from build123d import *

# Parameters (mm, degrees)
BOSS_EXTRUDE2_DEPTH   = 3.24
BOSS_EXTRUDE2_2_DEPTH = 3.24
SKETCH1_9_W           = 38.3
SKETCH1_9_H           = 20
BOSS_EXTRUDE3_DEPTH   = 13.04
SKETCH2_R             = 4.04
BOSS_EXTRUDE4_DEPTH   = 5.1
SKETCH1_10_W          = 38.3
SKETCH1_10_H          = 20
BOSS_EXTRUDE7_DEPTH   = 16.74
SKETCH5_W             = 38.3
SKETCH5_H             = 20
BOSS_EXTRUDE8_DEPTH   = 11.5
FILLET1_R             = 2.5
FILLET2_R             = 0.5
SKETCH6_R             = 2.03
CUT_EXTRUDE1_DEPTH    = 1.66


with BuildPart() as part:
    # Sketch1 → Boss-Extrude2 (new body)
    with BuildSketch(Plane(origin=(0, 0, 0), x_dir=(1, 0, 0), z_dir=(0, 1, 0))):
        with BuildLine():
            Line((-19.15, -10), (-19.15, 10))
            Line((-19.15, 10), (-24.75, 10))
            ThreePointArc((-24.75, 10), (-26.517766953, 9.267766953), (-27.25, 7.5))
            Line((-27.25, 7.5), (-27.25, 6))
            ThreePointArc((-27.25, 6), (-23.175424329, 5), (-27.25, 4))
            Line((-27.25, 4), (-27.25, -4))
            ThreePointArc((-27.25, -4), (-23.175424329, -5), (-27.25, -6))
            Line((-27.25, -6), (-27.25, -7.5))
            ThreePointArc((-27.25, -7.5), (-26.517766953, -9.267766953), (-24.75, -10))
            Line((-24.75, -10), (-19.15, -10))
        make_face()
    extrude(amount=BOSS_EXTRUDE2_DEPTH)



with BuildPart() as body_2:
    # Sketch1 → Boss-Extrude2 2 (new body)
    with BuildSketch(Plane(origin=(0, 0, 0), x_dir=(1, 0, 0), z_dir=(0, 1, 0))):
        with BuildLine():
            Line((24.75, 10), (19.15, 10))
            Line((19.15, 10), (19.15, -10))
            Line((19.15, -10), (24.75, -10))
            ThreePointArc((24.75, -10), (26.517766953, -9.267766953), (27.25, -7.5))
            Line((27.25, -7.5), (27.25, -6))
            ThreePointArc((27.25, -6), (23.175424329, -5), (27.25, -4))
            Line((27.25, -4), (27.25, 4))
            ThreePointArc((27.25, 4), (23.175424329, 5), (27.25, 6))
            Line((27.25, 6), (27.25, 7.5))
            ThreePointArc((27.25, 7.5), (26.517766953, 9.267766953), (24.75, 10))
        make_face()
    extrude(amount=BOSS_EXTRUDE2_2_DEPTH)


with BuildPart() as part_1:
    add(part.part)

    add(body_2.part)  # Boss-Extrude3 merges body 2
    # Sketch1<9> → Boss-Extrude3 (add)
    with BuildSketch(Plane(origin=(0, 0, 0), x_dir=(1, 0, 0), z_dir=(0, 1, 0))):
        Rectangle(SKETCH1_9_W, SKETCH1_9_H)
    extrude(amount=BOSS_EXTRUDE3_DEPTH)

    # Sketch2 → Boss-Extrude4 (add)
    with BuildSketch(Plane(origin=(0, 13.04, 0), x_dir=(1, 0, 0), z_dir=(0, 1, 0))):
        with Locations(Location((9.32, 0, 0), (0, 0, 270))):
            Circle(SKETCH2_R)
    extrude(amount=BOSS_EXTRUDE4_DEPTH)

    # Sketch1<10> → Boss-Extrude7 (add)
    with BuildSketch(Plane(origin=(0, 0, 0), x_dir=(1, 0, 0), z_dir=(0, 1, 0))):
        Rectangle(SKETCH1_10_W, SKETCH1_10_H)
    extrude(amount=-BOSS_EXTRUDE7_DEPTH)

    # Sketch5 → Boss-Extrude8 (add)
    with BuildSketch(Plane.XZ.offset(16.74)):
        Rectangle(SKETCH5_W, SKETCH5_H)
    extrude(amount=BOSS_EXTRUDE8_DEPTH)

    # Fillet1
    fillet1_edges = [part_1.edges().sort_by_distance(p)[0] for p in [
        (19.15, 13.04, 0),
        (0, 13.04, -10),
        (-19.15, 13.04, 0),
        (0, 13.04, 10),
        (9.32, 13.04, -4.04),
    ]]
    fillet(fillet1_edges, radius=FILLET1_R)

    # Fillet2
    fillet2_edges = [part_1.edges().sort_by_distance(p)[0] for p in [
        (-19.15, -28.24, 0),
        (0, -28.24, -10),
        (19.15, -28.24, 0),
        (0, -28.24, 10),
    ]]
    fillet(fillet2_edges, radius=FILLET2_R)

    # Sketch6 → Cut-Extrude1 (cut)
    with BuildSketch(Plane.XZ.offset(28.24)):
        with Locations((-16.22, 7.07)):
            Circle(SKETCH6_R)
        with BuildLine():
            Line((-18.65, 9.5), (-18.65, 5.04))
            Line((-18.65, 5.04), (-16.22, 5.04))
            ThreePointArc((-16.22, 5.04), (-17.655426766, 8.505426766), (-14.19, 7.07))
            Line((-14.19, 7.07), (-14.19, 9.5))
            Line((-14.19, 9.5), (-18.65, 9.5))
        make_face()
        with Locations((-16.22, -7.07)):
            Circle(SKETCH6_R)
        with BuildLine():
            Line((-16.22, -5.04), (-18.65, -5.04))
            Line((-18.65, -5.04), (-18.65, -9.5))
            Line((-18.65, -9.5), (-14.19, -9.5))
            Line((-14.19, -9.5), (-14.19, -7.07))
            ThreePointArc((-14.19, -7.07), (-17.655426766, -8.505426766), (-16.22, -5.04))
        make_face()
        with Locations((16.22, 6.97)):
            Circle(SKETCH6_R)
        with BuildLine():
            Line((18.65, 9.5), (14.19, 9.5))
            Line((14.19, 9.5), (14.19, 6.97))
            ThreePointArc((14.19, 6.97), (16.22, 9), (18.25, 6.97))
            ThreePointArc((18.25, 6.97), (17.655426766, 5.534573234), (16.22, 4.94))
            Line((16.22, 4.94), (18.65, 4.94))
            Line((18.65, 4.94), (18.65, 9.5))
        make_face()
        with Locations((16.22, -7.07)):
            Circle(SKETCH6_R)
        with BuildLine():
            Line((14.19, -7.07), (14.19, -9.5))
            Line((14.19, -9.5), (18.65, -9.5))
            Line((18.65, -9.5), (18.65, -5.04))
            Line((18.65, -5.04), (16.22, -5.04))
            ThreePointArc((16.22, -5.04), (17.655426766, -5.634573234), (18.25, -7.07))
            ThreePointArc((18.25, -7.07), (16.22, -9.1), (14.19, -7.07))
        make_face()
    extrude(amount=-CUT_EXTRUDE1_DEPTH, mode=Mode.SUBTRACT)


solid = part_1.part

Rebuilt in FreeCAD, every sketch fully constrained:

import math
import FreeCAD as App
import Part
import Sketcher


def edges_at(feature, points):
    """Names of the edges that pass closest to the given points."""
    edges = feature.Shape.Edges
    near = lambda p: min(range(len(edges)), key=lambda i: edges[i].distToShape(Part.Vertex(*p))[0])
    return sorted({f"Edge{near(p) + 1}" for p in points})

doc = App.newDocument("Part")
body = doc.addObject("PartDesign::Body", "Body")

# Sketch on XZ plane
sketch1 = body.newObject("Sketcher::SketchObject", "Sketch")
sketch1.AttachmentSupport = (doc.getObject("XZ_Plane"), [""])
sketch1.MapMode = "FlatFace"
sketch1.addGeometry([
    Part.LineSegment(App.Vector(-19.1, 10, 0), App.Vector(-19.1, -10, 0)),  # 0
    Part.LineSegment(App.Vector(-19.1, -10, 0), App.Vector(-24.8, -10, 0)),  # 1
    Part.ArcOfCircle(Part.Circle(App.Vector(-24.8, -7.5, 0), App.Vector(0, 0, 1), 2.5), math.radians(180), math.radians(270)),  # 2
    Part.LineSegment(App.Vector(-27.2, -7.5, 0), App.Vector(-27.2, -6, 0)),  # 3
    Part.ArcOfCircle(Part.Circle(App.Vector(-25.3, -5, 0), App.Vector(0, 0, 1), 2.2), math.radians(-152), math.radians(152)),  # 4
    Part.LineSegment(App.Vector(-27.2, -4, 0), App.Vector(-27.2, 4, 0)),  # 5
    Part.ArcOfCircle(Part.Circle(App.Vector(-25.3, 5, 0), App.Vector(0, 0, 1), 2.2), math.radians(-152), math.radians(152)),  # 6
    Part.LineSegment(App.Vector(-27.2, 6, 0), App.Vector(-27.2, 7.5, 0)),  # 7
    Part.ArcOfCircle(Part.Circle(App.Vector(-24.8, 7.5, 0), App.Vector(0, 0, 1), 2.5), math.radians(90), math.radians(180)),  # 8
    Part.LineSegment(App.Vector(-24.8, 10, 0), App.Vector(-19.1, 10, 0)),  # 9
], False)
sketch1.addConstraint([
    Sketcher.Constraint("Coincident", 0, 2, 1, 1),
    Sketcher.Constraint("Tangent", 1, 2, 2, 2),
    Sketcher.Constraint("Tangent", 2, 1, 3, 1),
    Sketcher.Constraint("Coincident", 3, 2, 4, 1),
    Sketcher.Constraint("Coincident", 4, 2, 5, 1),
    Sketcher.Constraint("Coincident", 5, 2, 6, 1),
    Sketcher.Constraint("Coincident", 6, 2, 7, 1),
    Sketcher.Constraint("Tangent", 7, 2, 8, 2),
    Sketcher.Constraint("Tangent", 8, 1, 9, 1),
    Sketcher.Constraint("Coincident", 9, 2, 0, 1),
    Sketcher.Constraint("Vertical", 0),
    Sketcher.Constraint("Horizontal", 1),
    Sketcher.Constraint("Vertical", 3),
    Sketcher.Constraint("Vertical", 5),
    Sketcher.Constraint("Vertical", 7),
    Sketcher.Constraint("Horizontal", 9),
    Sketcher.Constraint("Equal", 4, 6),
    Sketcher.Constraint("Equal", 2, 8),
    Sketcher.Constraint("Symmetric", 4, 3, 6, 3, -1),
    Sketcher.Constraint("Symmetric", 2, 3, 8, 3, -1),
    Sketcher.Constraint("Vertical", 3, 2, 4, 2),
    Sketcher.Constraint("Radius", 2, 2.5),
    Sketcher.Constraint("DistanceY", 0, 2, 0, 1, 20.0),
    Sketcher.Constraint("DistanceY", 5, 1, 5, 2, 8.0),
    Sketcher.Constraint("Radius", 4, 2.16),
    Sketcher.Constraint("DistanceX", 1, 2, 1, 1, 5.6),
    Sketcher.Constraint("DistanceY", 3, 1, 3, 2, 1.5),
    Sketcher.Constraint("DistanceX", 2, 3, -1, 1, 24.75),
])
pad1 = body.newObject("PartDesign::Pad", "Pad")
pad1.Profile = sketch1
pad1.Length = 3.24
pad1.Reversed = True
body2 = doc.addObject("PartDesign::Body", "Body001")

# Sketch on XZ plane
sketch2 = body2.newObject("Sketcher::SketchObject", "Sketch001")
sketch2.AttachmentSupport = (doc.getObject("XZ_Plane001"), [""])
sketch2.MapMode = "FlatFace"
sketch2.addGeometry([
    Part.LineSegment(App.Vector(24.8, -10, 0), App.Vector(19.1, -10, 0)),  # 0
    Part.LineSegment(App.Vector(19.1, -10, 0), App.Vector(19.1, 10, 0)),  # 1
    Part.LineSegment(App.Vector(19.1, 10, 0), App.Vector(24.8, 10, 0)),  # 2
    Part.ArcOfCircle(Part.Circle(App.Vector(24.8, 7.5, 0), App.Vector(0, 0, 1), 2.5), math.radians(0), math.radians(90)),  # 3
    Part.LineSegment(App.Vector(27.2, 7.5, 0), App.Vector(27.2, 6, 0)),  # 4
    Part.ArcOfCircle(Part.Circle(App.Vector(25.3, 5, 0), App.Vector(0, 0, 1), 2.2), math.radians(28), math.radians(332)),  # 5
    Part.LineSegment(App.Vector(27.2, 4, 0), App.Vector(27.2, -4, 0)),  # 6
    Part.ArcOfCircle(Part.Circle(App.Vector(25.3, -5, 0), App.Vector(0, 0, 1), 2.2), math.radians(28), math.radians(332)),  # 7
    Part.LineSegment(App.Vector(27.2, -6, 0), App.Vector(27.2, -7.5, 0)),  # 8
    Part.ArcOfCircle(Part.Circle(App.Vector(24.8, -7.5, 0), App.Vector(0, 0, 1), 2.5), math.radians(-90), math.radians(0)),  # 9
], False)
sketch2.addConstraint([
    Sketcher.Constraint("Coincident", 0, 2, 1, 1),
    Sketcher.Constraint("Coincident", 1, 2, 2, 1),
    Sketcher.Constraint("Tangent", 2, 2, 3, 2),
    Sketcher.Constraint("Tangent", 3, 1, 4, 1),
    Sketcher.Constraint("Coincident", 4, 2, 5, 1),
    Sketcher.Constraint("Coincident", 5, 2, 6, 1),
    Sketcher.Constraint("Coincident", 6, 2, 7, 1),
    Sketcher.Constraint("Coincident", 7, 2, 8, 1),
    Sketcher.Constraint("Tangent", 8, 2, 9, 2),
    Sketcher.Constraint("Tangent", 9, 1, 0, 1),
    Sketcher.Constraint("Horizontal", 0),
    Sketcher.Constraint("Vertical", 1),
    Sketcher.Constraint("Horizontal", 2),
    Sketcher.Constraint("Vertical", 4),
    Sketcher.Constraint("Vertical", 6),
    Sketcher.Constraint("Vertical", 8),
    Sketcher.Constraint("Equal", 5, 7),
    Sketcher.Constraint("Equal", 3, 9),
    Sketcher.Constraint("Symmetric", 5, 3, 7, 3, -1),
    Sketcher.Constraint("Symmetric", 3, 3, 9, 3, -1),
    Sketcher.Constraint("Vertical", 4, 2, 5, 2),
    Sketcher.Constraint("Radius", 3, 2.5),
    Sketcher.Constraint("DistanceY", 1, 1, 1, 2, 20.0),
    Sketcher.Constraint("DistanceY", 6, 2, 6, 1, 8.0),
    Sketcher.Constraint("Radius", 5, 2.16),
    Sketcher.Constraint("DistanceX", 0, 2, 0, 1, 5.6),
    Sketcher.Constraint("DistanceY", 4, 2, 4, 1, 1.5),
    Sketcher.Constraint("DistanceX", -1, 1, 3, 3, 24.75),
])
pad2 = body2.newObject("PartDesign::Pad", "Pad001")
pad2.Profile = sketch2
pad2.Length = 3.24
pad2.Reversed = True
body.AllowCompound = True
doc.recompute()

boolean = body.newObject("PartDesign::Boolean", "Boolean")
boolean.Type = "Fuse"
boolean.addObjects([body2])

# Sketch on XZ plane
sketch3 = body.newObject("Sketcher::SketchObject", "Sketch002")
sketch3.AttachmentSupport = (doc.getObject("XZ_Plane"), [""])
sketch3.MapMode = "FlatFace"
sketch3.addGeometry([
    Part.LineSegment(App.Vector(-19, -10, 0), App.Vector(-19, 10, 0)),
    Part.LineSegment(App.Vector(-19, 10, 0), App.Vector(19, 10, 0)),
    Part.LineSegment(App.Vector(19, 10, 0), App.Vector(19, -10, 0)),
    Part.LineSegment(App.Vector(19, -10, 0), App.Vector(-19, -10, 0)),
], False)
sketch3.addConstraint([
    Sketcher.Constraint("Coincident", 0, 2, 1, 1),
    Sketcher.Constraint("Coincident", 1, 2, 2, 1),
    Sketcher.Constraint("Coincident", 2, 2, 3, 1),
    Sketcher.Constraint("Coincident", 3, 2, 0, 1),
    Sketcher.Constraint("Vertical", 0),
    Sketcher.Constraint("Horizontal", 1),
    Sketcher.Constraint("Vertical", 2),
    Sketcher.Constraint("Horizontal", 3),
    Sketcher.Constraint("Symmetric", 0, 2, 2, 2, -1, 1),
    Sketcher.Constraint("DistanceY", 0, 1, 0, 2, 20.0),
    Sketcher.Constraint("DistanceX", 1, 1, 1, 2, 38.3),
])
pad3 = body.newObject("PartDesign::Pad", "Pad002")
pad3.Profile = sketch3
pad3.Length = 13.04
pad3.Reversed = True

# Sketch on XZ plane
sketch4 = body.newObject("Sketcher::SketchObject", "Sketch003")
sketch4.AttachmentSupport = (doc.getObject("XZ_Plane"), [""])
sketch4.MapMode = "FlatFace"
sketch4.AttachmentOffset = App.Placement(App.Vector(0, 0, -13.04), App.Rotation())
sketch4.addGeometry(Part.Circle(App.Vector(9.3, 0, 0), App.Vector(0, 0, 1), 4), False)
sketch4.addConstraint([
    Sketcher.Constraint("PointOnObject", 0, 3, -1),
    Sketcher.Constraint("Diameter", 0, 8.08),
    Sketcher.Constraint("DistanceX", -1, 1, 0, 3, 9.32),
])
pad4 = body.newObject("PartDesign::Pad", "Pad003")
pad4.Profile = sketch4
pad4.Length = 5.1
pad4.Reversed = True

# Sketch on XZ plane
sketch5 = body.newObject("Sketcher::SketchObject", "Sketch004")
sketch5.AttachmentSupport = (doc.getObject("XZ_Plane"), [""])
sketch5.MapMode = "FlatFace"
sketch5.addGeometry([
    Part.LineSegment(App.Vector(-19, -10, 0), App.Vector(-19, 10, 0)),
    Part.LineSegment(App.Vector(-19, 10, 0), App.Vector(19, 10, 0)),
    Part.LineSegment(App.Vector(19, 10, 0), App.Vector(19, -10, 0)),
    Part.LineSegment(App.Vector(19, -10, 0), App.Vector(-19, -10, 0)),
], False)
sketch5.addConstraint([
    Sketcher.Constraint("Coincident", 0, 2, 1, 1),
    Sketcher.Constraint("Coincident", 1, 2, 2, 1),
    Sketcher.Constraint("Coincident", 2, 2, 3, 1),
    Sketcher.Constraint("Coincident", 3, 2, 0, 1),
    Sketcher.Constraint("Vertical", 0),
    Sketcher.Constraint("Horizontal", 1),
    Sketcher.Constraint("Vertical", 2),
    Sketcher.Constraint("Horizontal", 3),
    Sketcher.Constraint("Symmetric", 0, 2, 2, 2, -1, 1),
    Sketcher.Constraint("DistanceY", 0, 1, 0, 2, 20.0),
    Sketcher.Constraint("DistanceX", 1, 1, 1, 2, 38.3),
])
pad5 = body.newObject("PartDesign::Pad", "Pad004")
pad5.Profile = sketch5
pad5.Length = 16.74

# Sketch on XZ plane
sketch6 = body.newObject("Sketcher::SketchObject", "Sketch005")
sketch6.AttachmentSupport = (doc.getObject("XZ_Plane"), [""])
sketch6.MapMode = "FlatFace"
sketch6.AttachmentOffset = App.Placement(App.Vector(0, 0, 16.74), App.Rotation())
sketch6.addGeometry([
    Part.LineSegment(App.Vector(-19, 10, 0), App.Vector(-19, -10, 0)),
    Part.LineSegment(App.Vector(-19, -10, 0), App.Vector(19, -10, 0)),
    Part.LineSegment(App.Vector(19, -10, 0), App.Vector(19, 10, 0)),
    Part.LineSegment(App.Vector(19, 10, 0), App.Vector(-19, 10, 0)),
], False)
sketch6.addConstraint([
    Sketcher.Constraint("Coincident", 0, 2, 1, 1),
    Sketcher.Constraint("Coincident", 1, 2, 2, 1),
    Sketcher.Constraint("Coincident", 2, 2, 3, 1),
    Sketcher.Constraint("Coincident", 3, 2, 0, 1),
    Sketcher.Constraint("Vertical", 0),
    Sketcher.Constraint("Horizontal", 1),
    Sketcher.Constraint("Vertical", 2),
    Sketcher.Constraint("Horizontal", 3),
    Sketcher.Constraint("Symmetric", 0, 2, 2, 2, -1, 1),
    Sketcher.Constraint("DistanceY", 0, 2, 0, 1, 20.0),
    Sketcher.Constraint("DistanceX", 1, 1, 1, 2, 38.3),
])
pad6 = body.newObject("PartDesign::Pad", "Pad005")
pad6.Profile = sketch6
pad6.Length = 11.5
doc.recompute()

fillet = body.newObject("PartDesign::Fillet", "Fillet")
fillet.Base = (pad6, edges_at(pad6, [
    (19.15, 13.04, 0),
    (0, 13.04, -10),
    (-19.15, 13.04, 0),
    (0, 13.04, 10),
    (9.32, 13.04, -4.04),
]))
fillet.Radius = 2.5
doc.recompute()

fillet2 = body.newObject("PartDesign::Fillet", "Fillet001")
fillet2.Base = (fillet, edges_at(fillet, [
    (-19.15, -28.24, 0),
    (0, -28.24, -10),
    (19.15, -28.24, 0),
    (0, -28.24, 10),
]))
fillet2.Radius = 0.5

# Sketch on XZ plane
sketch7 = body.newObject("Sketcher::SketchObject", "Sketch006")
sketch7.AttachmentSupport = (doc.getObject("XZ_Plane"), [""])
sketch7.MapMode = "FlatFace"
sketch7.AttachmentOffset = App.Placement(App.Vector(0, 0, 28.24), App.Rotation())
sketch7.addGeometry([
    Part.ArcOfCircle(Part.Circle(App.Vector(-16.2, 7.1, 0), App.Vector(0, 0, 1), 2), math.radians(-90), math.radians(0)),  # 0
    Part.LineSegment(App.Vector(-14.2, 7.1, 0), App.Vector(-14.2, 9.5, 0)),  # 1
    Part.LineSegment(App.Vector(-14.2, 9.5, 0), App.Vector(-18.6, 9.5, 0)),  # 2
    Part.LineSegment(App.Vector(-18.6, 9.5, 0), App.Vector(-18.6, 5, 0)),  # 3
    Part.LineSegment(App.Vector(-18.6, 5, 0), App.Vector(-16.2, 5, 0)),  # 4
    Part.ArcOfCircle(Part.Circle(App.Vector(-16.2, -7.1, 0), App.Vector(0, 0, 1), 2), math.radians(0), math.radians(90)),  # 5
    Part.LineSegment(App.Vector(-16.2, -5, 0), App.Vector(-18.6, -5, 0)),  # 6
    Part.LineSegment(App.Vector(-18.6, -5, 0), App.Vector(-18.6, -9.5, 0)),  # 7
    Part.LineSegment(App.Vector(-18.6, -9.5, 0), App.Vector(-14.2, -9.5, 0)),  # 8
    Part.LineSegment(App.Vector(-14.2, -9.5, 0), App.Vector(-14.2, -7.1, 0)),  # 9
    Part.ArcOfCircle(Part.Circle(App.Vector(16.2, 7, 0), App.Vector(0, 0, 1), 2), math.radians(180), math.radians(270)),  # 10
    Part.LineSegment(App.Vector(16.2, 4.9, 0), App.Vector(18.6, 4.9, 0)),  # 11
    Part.LineSegment(App.Vector(18.6, 4.9, 0), App.Vector(18.6, 9.5, 0)),  # 12
    Part.LineSegment(App.Vector(18.6, 9.5, 0), App.Vector(14.2, 9.5, 0)),  # 13
    Part.LineSegment(App.Vector(14.2, 9.5, 0), App.Vector(14.2, 7, 0)),  # 14
    Part.ArcOfCircle(Part.Circle(App.Vector(16.2, -7.1, 0), App.Vector(0, 0, 1), 2), math.radians(90), math.radians(180)),  # 15
    Part.LineSegment(App.Vector(14.2, -7.1, 0), App.Vector(14.2, -9.5, 0)),  # 16
    Part.LineSegment(App.Vector(14.2, -9.5, 0), App.Vector(18.6, -9.5, 0)),  # 17
    Part.LineSegment(App.Vector(18.6, -9.5, 0), App.Vector(18.6, -5, 0)),  # 18
    Part.LineSegment(App.Vector(18.6, -5, 0), App.Vector(16.2, -5, 0)),  # 19
], False)
sketch7.addConstraint([
    Sketcher.Constraint("Tangent", 0, 2, 1, 1),
    Sketcher.Constraint("Coincident", 1, 2, 2, 1),
    Sketcher.Constraint("Coincident", 2, 2, 3, 1),
    Sketcher.Constraint("Coincident", 3, 2, 4, 1),
    Sketcher.Constraint("Tangent", 4, 2, 0, 1),
    Sketcher.Constraint("Tangent", 5, 2, 6, 1),
    Sketcher.Constraint("Coincident", 6, 2, 7, 1),
    Sketcher.Constraint("Coincident", 7, 2, 8, 1),
    Sketcher.Constraint("Coincident", 8, 2, 9, 1),
    Sketcher.Constraint("Tangent", 9, 2, 5, 1),
    Sketcher.Constraint("Tangent", 10, 2, 11, 1),
    Sketcher.Constraint("Coincident", 11, 2, 12, 1),
    Sketcher.Constraint("Coincident", 12, 2, 13, 1),
    Sketcher.Constraint("Coincident", 13, 2, 14, 1),
    Sketcher.Constraint("Tangent", 14, 2, 10, 1),
    Sketcher.Constraint("Tangent", 15, 2, 16, 1),
    Sketcher.Constraint("Coincident", 16, 2, 17, 1),
    Sketcher.Constraint("Coincident", 17, 2, 18, 1),
    Sketcher.Constraint("Coincident", 18, 2, 19, 1),
    Sketcher.Constraint("Tangent", 19, 2, 15, 1),
    Sketcher.Constraint("Vertical", 1),
    Sketcher.Constraint("Horizontal", 2),
    Sketcher.Constraint("Vertical", 3),
    Sketcher.Constraint("Horizontal", 4),
    Sketcher.Constraint("Horizontal", 6),
    Sketcher.Constraint("Vertical", 7),
    Sketcher.Constraint("Horizontal", 8),
    Sketcher.Constraint("Vertical", 9),
    Sketcher.Constraint("Horizontal", 11),
    Sketcher.Constraint("Vertical", 12),
    Sketcher.Constraint("Horizontal", 13),
    Sketcher.Constraint("Vertical", 14),
    Sketcher.Constraint("Vertical", 16),
    Sketcher.Constraint("Horizontal", 17),
    Sketcher.Constraint("Vertical", 18),
    Sketcher.Constraint("Horizontal", 19),
    Sketcher.Constraint("Equal", 0, 5),
    Sketcher.Constraint("Equal", 5, 10),
    Sketcher.Constraint("Equal", 10, 15),
    Sketcher.Constraint("Symmetric", 0, 3, 15, 3, -1, 1),
    Sketcher.Constraint("Symmetric", 7, 2, 12, 2, -1, 1),
    Sketcher.Constraint("Symmetric", 2, 2, 17, 2, -1, 1),
    Sketcher.Constraint("Symmetric", 5, 3, 15, 3, -2),
    Sketcher.Constraint("Symmetric", 2, 2, 12, 2, -2),
    Sketcher.Constraint("Vertical", 10, 3, 15, 3),
    Sketcher.Constraint("Equal", 19, 1),
    Sketcher.Constraint("Radius", 0, 2.03),
    Sketcher.Constraint("DistanceX", 2, 2, 2, 1, 4.46),
    Sketcher.Constraint("DistanceY", 12, 1, 12, 2, 4.56),
    Sketcher.Constraint("DistanceY", -1, 1, 1, 2, 9.5),
    Sketcher.Constraint("DistanceX", 0, 3, -1, 1, 16.22),
])
pocket1 = body.newObject("PartDesign::Pocket", "Pocket")
pocket1.Profile = sketch7
pocket1.Length = 1.66

doc.recompute()
